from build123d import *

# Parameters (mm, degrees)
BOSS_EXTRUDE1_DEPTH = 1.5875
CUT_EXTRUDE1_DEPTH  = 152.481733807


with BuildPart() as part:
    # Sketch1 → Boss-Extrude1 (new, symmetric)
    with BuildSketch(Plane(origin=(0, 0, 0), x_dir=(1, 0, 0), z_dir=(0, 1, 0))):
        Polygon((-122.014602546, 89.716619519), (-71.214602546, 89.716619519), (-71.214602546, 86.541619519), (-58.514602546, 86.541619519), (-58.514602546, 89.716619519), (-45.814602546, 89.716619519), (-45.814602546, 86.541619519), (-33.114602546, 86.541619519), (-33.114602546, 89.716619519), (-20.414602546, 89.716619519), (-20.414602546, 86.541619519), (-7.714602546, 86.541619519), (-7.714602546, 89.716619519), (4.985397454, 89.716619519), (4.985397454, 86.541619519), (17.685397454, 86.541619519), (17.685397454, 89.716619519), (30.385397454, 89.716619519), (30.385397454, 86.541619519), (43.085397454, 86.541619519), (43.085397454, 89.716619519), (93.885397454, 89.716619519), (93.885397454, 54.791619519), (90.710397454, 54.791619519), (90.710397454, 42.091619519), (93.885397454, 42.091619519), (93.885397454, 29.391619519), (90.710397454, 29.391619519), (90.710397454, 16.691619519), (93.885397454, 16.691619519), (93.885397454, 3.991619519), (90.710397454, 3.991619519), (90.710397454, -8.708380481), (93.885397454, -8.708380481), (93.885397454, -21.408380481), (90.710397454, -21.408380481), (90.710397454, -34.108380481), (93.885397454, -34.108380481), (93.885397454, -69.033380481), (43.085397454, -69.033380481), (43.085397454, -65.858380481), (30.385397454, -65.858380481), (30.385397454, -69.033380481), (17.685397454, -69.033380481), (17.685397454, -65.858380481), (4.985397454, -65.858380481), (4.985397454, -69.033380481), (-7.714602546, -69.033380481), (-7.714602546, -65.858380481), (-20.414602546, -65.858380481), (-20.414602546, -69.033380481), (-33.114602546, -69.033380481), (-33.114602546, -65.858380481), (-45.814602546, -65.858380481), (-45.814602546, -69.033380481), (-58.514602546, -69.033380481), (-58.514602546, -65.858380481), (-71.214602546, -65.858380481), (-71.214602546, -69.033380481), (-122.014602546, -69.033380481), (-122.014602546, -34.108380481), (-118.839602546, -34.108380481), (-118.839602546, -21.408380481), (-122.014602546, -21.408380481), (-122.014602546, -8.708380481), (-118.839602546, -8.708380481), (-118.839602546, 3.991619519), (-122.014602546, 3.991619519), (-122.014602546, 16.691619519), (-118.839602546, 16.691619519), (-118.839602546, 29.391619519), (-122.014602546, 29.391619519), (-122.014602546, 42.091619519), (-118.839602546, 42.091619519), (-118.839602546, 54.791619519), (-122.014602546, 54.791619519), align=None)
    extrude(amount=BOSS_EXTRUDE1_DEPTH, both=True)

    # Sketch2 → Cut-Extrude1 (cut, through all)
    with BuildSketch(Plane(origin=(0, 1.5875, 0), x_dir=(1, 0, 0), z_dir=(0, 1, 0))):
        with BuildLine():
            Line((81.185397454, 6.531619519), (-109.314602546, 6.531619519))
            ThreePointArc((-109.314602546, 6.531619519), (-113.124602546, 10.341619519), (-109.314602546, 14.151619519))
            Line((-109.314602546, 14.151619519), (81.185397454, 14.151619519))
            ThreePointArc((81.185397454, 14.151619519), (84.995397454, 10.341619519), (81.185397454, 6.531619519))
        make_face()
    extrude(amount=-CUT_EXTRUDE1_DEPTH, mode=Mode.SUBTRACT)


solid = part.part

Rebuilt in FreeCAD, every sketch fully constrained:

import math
import FreeCAD as App
import Part
import Sketcher

V = App.Vector
Q = App.Units.Quantity

doc = App.newDocument("Part")
body = doc.addObject("PartDesign::Body", "Body")

sketch1 = body.newObject("Sketcher::SketchObject", "Sketch")
sketch1.AttachmentSupport = (doc.getObject("XZ_Plane"), [""])
sketch1.MapMode = "FlatFace"
sketch1.addGeometry(Part.LineSegment(V(-71.2, -89.7, 0), V(-122, -89.7, 0)), False)
sketch1.addGeometry(Part.LineSegment(V(-122, -89.7, 0), V(-122, -54.8, 0)), False)
sketch1.addGeometry(Part.LineSegment(V(-122, -54.8, 0), V(-118.8, -54.8, 0)), False)
sketch1.addGeometry(Part.LineSegment(V(-118.8, -54.8, 0), V(-118.8, -42.1, 0)), False)
sketch1.addGeometry(Part.LineSegment(V(-118.8, -42.1, 0), V(-122, -42.1, 0)), False)
sketch1.addGeometry(Part.LineSegment(V(-122, -42.1, 0), V(-122, -29.4, 0)), False)
sketch1.addGeometry(Part.LineSegment(V(-122, -29.4, 0), V(-118.8, -29.4, 0)), False)
sketch1.addGeometry(Part.LineSegment(V(-118.8, -29.4, 0), V(-118.8, -16.7, 0)), False)
sketch1.addGeometry(Part.LineSegment(V(-118.8, -16.7, 0), V(-122, -16.7, 0)), False)
sketch1.addGeometry(Part.LineSegment(V(-122, -16.7, 0), V(-122, -4, 0)), False)
sketch1.addGeometry(Part.LineSegment(V(-122, -4, 0), V(-118.8, -4, 0)), False)
sketch1.addGeometry(Part.LineSegment(V(-118.8, -4, 0), V(-118.8, 8.7, 0)), False)
sketch1.addGeometry(Part.LineSegment(V(-118.8, 8.7, 0), V(-122, 8.7, 0)), False)
sketch1.addGeometry(Part.LineSegment(V(-122, 8.7, 0), V(-122, 21.4, 0)), False)
sketch1.addGeometry(Part.LineSegment(V(-122, 21.4, 0), V(-118.8, 21.4, 0)), False)
sketch1.addGeometry(Part.LineSegment(V(-118.8, 21.4, 0), V(-118.8, 34.1, 0)), False)
sketch1.addGeometry(Part.LineSegment(V(-118.8, 34.1, 0), V(-122, 34.1, 0)), False)
sketch1.addGeometry(Part.LineSegment(V(-122, 34.1, 0), V(-122, 69, 0)), False)
sketch1.addGeometry(Part.LineSegment(V(-122, 69, 0), V(-71.2, 69, 0)), False)
sketch1.addGeometry(Part.LineSegment(V(-71.2, 69, 0), V(-71.2, 65.9, 0)), False)
sketch1.addGeometry(Part.LineSegment(V(-71.2, 65.9, 0), V(-58.5, 65.9, 0)), False)
sketch1.addGeometry(Part.LineSegment(V(-58.5, 65.9, 0), V(-58.5, 69, 0)), False)
sketch1.addGeometry(Part.LineSegment(V(-58.5, 69, 0), V(-45.8, 69, 0)), False)
sketch1.addGeometry(Part.LineSegment(V(-45.8, 69, 0), V(-45.8, 65.9, 0)), False)
sketch1.addGeometry(Part.LineSegment(V(-45.8, 65.9, 0), V(-33.1, 65.9, 0)), False)
sketch1.addGeometry(Part.LineSegment(V(-33.1, 65.9, 0), V(-33.1, 69, 0)), False)
sketch1.addGeometry(Part.LineSegment(V(-33.1, 69, 0), V(-20.4, 69, 0)), False)
sketch1.addGeometry(Part.LineSegment(V(-20.4, 69, 0), V(-20.4, 65.9, 0)), False)
sketch1.addGeometry(Part.LineSegment(V(-20.4, 65.9, 0), V(-7.7, 65.9, 0)), False)
sketch1.addGeometry(Part.LineSegment(V(-7.7, 65.9, 0), V(-7.7, 69, 0)), False)
sketch1.addGeometry(Part.LineSegment(V(-7.7, 69, 0), V(5, 69, 0)), False)
sketch1.addGeometry(Part.LineSegment(V(5, 69, 0), V(5, 65.9, 0)), False)
sketch1.addGeometry(Part.LineSegment(V(5, 65.9, 0), V(17.7, 65.9, 0)), False)
sketch1.addGeometry(Part.LineSegment(V(17.7, 65.9, 0), V(17.7, 69, 0)), False)
sketch1.addGeometry(Part.LineSegment(V(17.7, 69, 0), V(30.4, 69, 0)), False)
sketch1.addGeometry(Part.LineSegment(V(30.4, 69, 0), V(30.4, 65.9, 0)), False)
sketch1.addGeometry(Part.LineSegment(V(30.4, 65.9, 0), V(43.1, 65.9, 0)), False)
sketch1.addGeometry(Part.LineSegment(V(43.1, 65.9, 0), V(43.1, 69, 0)), False)
sketch1.addGeometry(Part.LineSegment(V(43.1, 69, 0), V(93.9, 69, 0)), False)
sketch1.addGeometry(Part.LineSegment(V(93.9, 69, 0), V(93.9, 34.1, 0)), False)
sketch1.addGeometry(Part.LineSegment(V(93.9, 34.1, 0), V(90.7, 34.1, 0)), False)
sketch1.addGeometry(Part.LineSegment(V(90.7, 34.1, 0), V(90.7, 21.4, 0)), False)
sketch1.addGeometry(Part.LineSegment(V(90.7, 21.4, 0), V(93.9, 21.4, 0)), False)
sketch1.addGeometry(Part.LineSegment(V(93.9, 21.4, 0), V(93.9, 8.7, 0)), False)
sketch1.addGeometry(Part.LineSegment(V(93.9, 8.7, 0), V(90.7, 8.7, 0)), False)
sketch1.addGeometry(Part.LineSegment(V(90.7, 8.7, 0), V(90.7, -4, 0)), False)
sketch1.addGeometry(Part.LineSegment(V(90.7, -4, 0), V(93.9, -4, 0)), False)
sketch1.addGeometry(Part.LineSegment(V(93.9, -4, 0), V(93.9, -16.7, 0)), False)
sketch1.addGeometry(Part.LineSegment(V(93.9, -16.7, 0), V(90.7, -16.7, 0)), False)
sketch1.addGeometry(Part.LineSegment(V(90.7, -16.7, 0), V(90.7, -29.4, 0)), False)
sketch1.addGeometry(Part.LineSegment(V(90.7, -29.4, 0), V(93.9, -29.4, 0)), False)
sketch1.addGeometry(Part.LineSegment(V(93.9, -29.4, 0), V(93.9, -42.1, 0)), False)
sketch1.addGeometry(Part.LineSegment(V(93.9, -42.1, 0), V(90.7, -42.1, 0)), False)
sketch1.addGeometry(Part.LineSegment(V(90.7, -42.1, 0), V(90.7, -54.8, 0)), False)
sketch1.addGeometry(Part.LineSegment(V(90.7, -54.8, 0), V(93.9, -54.8, 0)), False)
sketch1.addGeometry(Part.LineSegment(V(93.9, -54.8, 0), V(93.9, -89.7, 0)), False)
sketch1.addGeometry(Part.LineSegment(V(93.9, -89.7, 0), V(43.1, -89.7, 0)), False)
sketch1.addGeometry(Part.LineSegment(V(43.1, -89.7, 0), V(43.1, -86.5, 0)), False)
sketch1.addGeometry(Part.LineSegment(V(43.1, -86.5, 0), V(30.4, -86.5, 0)), False)
sketch1.addGeometry(Part.LineSegment(V(30.4, -86.5, 0), V(30.4, -89.7, 0)), False)
sketch1.addGeometry(Part.LineSegment(V(30.4, -89.7, 0), V(17.7, -89.7, 0)), False)
sketch1.addGeometry(Part.LineSegment(V(17.7, -89.7, 0), V(17.7, -86.5, 0)), False)
sketch1.addGeometry(Part.LineSegment(V(17.7, -86.5, 0), V(5, -86.5, 0)), False)
sketch1.addGeometry(Part.LineSegment(V(5, -86.5, 0), V(5, -89.7, 0)), False)
sketch1.addGeometry(Part.LineSegment(V(5, -89.7, 0), V(-7.7, -89.7, 0)), False)
sketch1.addGeometry(Part.LineSegment(V(-7.7, -89.7, 0), V(-7.7, -86.5, 0)), False)
sketch1.addGeometry(Part.LineSegment(V(-7.7, -86.5, 0), V(-20.4, -86.5, 0)), False)
sketch1.addGeometry(Part.LineSegment(V(-20.4, -86.5, 0), V(-20.4, -89.7, 0)), False)
sketch1.addGeometry(Part.LineSegment(V(-20.4, -89.7, 0), V(-33.1, -89.7, 0)), False)
sketch1.addGeometry(Part.LineSegment(V(-33.1, -89.7, 0), V(-33.1, -86.5, 0)), False)
sketch1.addGeometry(Part.LineSegment(V(-33.1, -86.5, 0), V(-45.8, -86.5, 0)), False)
sketch1.addGeometry(Part.LineSegment(V(-45.8, -86.5, 0), V(-45.8, -89.7, 0)), False)
sketch1.addGeometry(Part.LineSegment(V(-45.8, -89.7, 0), V(-58.5, -89.7, 0)), False)
sketch1.addGeometry(Part.LineSegment(V(-58.5, -89.7, 0), V(-58.5, -86.5, 0)), False)
sketch1.addGeometry(Part.LineSegment(V(-58.5, -86.5, 0), V(-71.2, -86.5, 0)), False)
sketch1.addGeometry(Part.LineSegment(V(-71.2, -86.5, 0), V(-71.2, -89.7, 0)), False)
sketch1.addConstraint(Sketcher.Constraint("Coincident", 0, 2, 1, 1))
sketch1.addConstraint(Sketcher.Constraint("Coincident", 1, 2, 2, 1))
sketch1.addConstraint(Sketcher.Constraint("Coincident", 2, 2, 3, 1))
sketch1.addConstraint(Sketcher.Constraint("Coincident", 3, 2, 4, 1))
sketch1.addConstraint(Sketcher.Constraint("Coincident", 4, 2, 5, 1))
sketch1.addConstraint(Sketcher.Constraint("Coincident", 5, 2, 6, 1))
sketch1.addConstraint(Sketcher.Constraint("Coincident", 6, 2, 7, 1))
sketch1.addConstraint(Sketcher.Constraint("Coincident", 7, 2, 8, 1))
sketch1.addConstraint(Sketcher.Constraint("Coincident", 8, 2, 9, 1))
sketch1.addConstraint(Sketcher.Constraint("Coincident", 9, 2, 10, 1))
sketch1.addConstraint(Sketcher.Constraint("Coincident", 10, 2, 11, 1))
sketch1.addConstraint(Sketcher.Constraint("Coincident", 11, 2, 12, 1))
sketch1.addConstraint(Sketcher.Constraint("Coincident", 12, 2, 13, 1))
sketch1.addConstraint(Sketcher.Constraint("Coincident", 13, 2, 14, 1))
sketch1.addConstraint(Sketcher.Constraint("Coincident", 14, 2, 15, 1))
sketch1.addConstraint(Sketcher.Constraint("Coincident", 15, 2, 16, 1))
sketch1.addConstraint(Sketcher.Constraint("Coincident", 16, 2, 17, 1))
sketch1.addConstraint(Sketcher.Constraint("Coincident", 17, 2, 18, 1))
sketch1.addConstraint(Sketcher.Constraint("Coincident", 18, 2, 19, 1))
sketch1.addConstraint(Sketcher.Constraint("Coincident", 19, 2, 20, 1))
sketch1.addConstraint(Sketcher.Constraint("Coincident", 20, 2, 21, 1))
sketch1.addConstraint(Sketcher.Constraint("Coincident", 21, 2, 22, 1))
sketch1.addConstraint(Sketcher.Constraint("Coincident", 22, 2, 23, 1))
sketch1.addConstraint(Sketcher.Constraint("Coincident", 23, 2, 24, 1))
sketch1.addConstraint(Sketcher.Constraint("Coincident", 24, 2, 25, 1))
sketch1.addConstraint(Sketcher.Constraint("Coincident", 25, 2, 26, 1))
sketch1.addConstraint(Sketcher.Constraint("Coincident", 26, 2, 27, 1))
sketch1.addConstraint(Sketcher.Constraint("Coincident", 27, 2, 28, 1))
sketch1.addConstraint(Sketcher.Constraint("Coincident", 28, 2, 29, 1))
sketch1.addConstraint(Sketcher.Constraint("Coincident", 29, 2, 30, 1))
sketch1.addConstraint(Sketcher.Constraint("Coincident", 30, 2, 31, 1))
sketch1.addConstraint(Sketcher.Constraint("Coincident", 31, 2, 32, 1))
sketch1.addConstraint(Sketcher.Constraint("Coincident", 32, 2, 33, 1))
sketch1.addConstraint(Sketcher.Constraint("Coincident", 33, 2, 34, 1))
sketch1.addConstraint(Sketcher.Constraint("Coincident", 34, 2, 35, 1))
sketch1.addConstraint(Sketcher.Constraint("Coincident", 35, 2, 36, 1))
sketch1.addConstraint(Sketcher.Constraint("Coincident", 36, 2, 37, 1))
sketch1.addConstraint(Sketcher.Constraint("Coincident", 37, 2, 38, 1))
sketch1.addConstraint(Sketcher.Constraint("Coincident", 38, 2, 39, 1))
sketch1.addConstraint(Sketcher.Constraint("Coincident", 39, 2, 40, 1))
sketch1.addConstraint(Sketcher.Constraint("Coincident", 40, 2, 41, 1))
sketch1.addConstraint(Sketcher.Constraint("Coincident", 41, 2, 42, 1))
sketch1.addConstraint(Sketcher.Constraint("Coincident", 42, 2, 43, 1))
sketch1.addConstraint(Sketcher.Constraint("Coincident", 43, 2, 44, 1))
sketch1.addConstraint(Sketcher.Constraint("Coincident", 44, 2, 45, 1))
sketch1.addConstraint(Sketcher.Constraint("Coincident", 45, 2, 46, 1))
sketch1.addConstraint(Sketcher.Constraint("Coincident", 46, 2, 47, 1))
sketch1.addConstraint(Sketcher.Constraint("Coincident", 47, 2, 48, 1))
sketch1.addConstraint(Sketcher.Constraint("Coincident", 48, 2, 49, 1))
sketch1.addConstraint(Sketcher.Constraint("Coincident", 49, 2, 50, 1))
sketch1.addConstraint(Sketcher.Constraint("Coincident", 50, 2, 51, 1))
sketch1.addConstraint(Sketcher.Constraint("Coincident", 51, 2, 52, 1))
sketch1.addConstraint(Sketcher.Constraint("Coincident", 52, 2, 53, 1))
sketch1.addConstraint(Sketcher.Constraint("Coincident", 53, 2, 54, 1))
sketch1.addConstraint(Sketcher.Constraint("Coincident", 54, 2, 55, 1))
sketch1.addConstraint(Sketcher.Constraint("Coincident", 55, 2, 56, 1))
sketch1.addConstraint(Sketcher.Constraint("Coincident", 56, 2, 57, 1))
sketch1.addConstraint(Sketcher.Constraint("Coincident", 57, 2, 58, 1))
sketch1.addConstraint(Sketcher.Constraint("Coincident", 58, 2, 59, 1))
sketch1.addConstraint(Sketcher.Constraint("Coincident", 59, 2, 60, 1))
sketch1.addConstraint(Sketcher.Constraint("Coincident", 60, 2, 61, 1))
sketch1.addConstraint(Sketcher.Constraint("Coincident", 61, 2, 62, 1))
sketch1.addConstraint(Sketcher.Constraint("Coincident", 62, 2, 63, 1))
sketch1.addConstraint(Sketcher.Constraint("Coincident", 63, 2, 64, 1))
sketch1.addConstraint(Sketcher.Constraint("Coincident", 64, 2, 65, 1))
sketch1.addConstraint(Sketcher.Constraint("Coincident", 65, 2, 66, 1))
sketch1.addConstraint(Sketcher.Constraint("Coincident", 66, 2, 67, 1))
sketch1.addConstraint(Sketcher.Constraint("Coincident", 67, 2, 68, 1))
sketch1.addConstraint(Sketcher.Constraint("Coincident", 68, 2, 69, 1))
sketch1.addConstraint(Sketcher.Constraint("Coincident", 69, 2, 70, 1))
sketch1.addConstraint(Sketcher.Constraint("Coincident", 70, 2, 71, 1))
sketch1.addConstraint(Sketcher.Constraint("Coincident", 71, 2, 72, 1))
sketch1.addConstraint(Sketcher.Constraint("Coincident", 72, 2, 73, 1))
sketch1.addConstraint(Sketcher.Constraint("Coincident", 73, 2, 74, 1))
sketch1.addConstraint(Sketcher.Constraint("Coincident", 74, 2, 75, 1))
sketch1.addConstraint(Sketcher.Constraint("Coincident", 75, 2, 0, 1))
sketch1.addConstraint(Sketcher.Constraint("Horizontal", 0))
sketch1.addConstraint(Sketcher.Constraint("Vertical", 1))
sketch1.addConstraint(Sketcher.Constraint("Horizontal", 2))
sketch1.addConstraint(Sketcher.Constraint("Vertical", 3))
sketch1.addConstraint(Sketcher.Constraint("Horizontal", 4))
sketch1.addConstraint(Sketcher.Constraint("Vertical", 5))
sketch1.addConstraint(Sketcher.Constraint("Horizontal", 6))
sketch1.addConstraint(Sketcher.Constraint("Vertical", 7))
sketch1.addConstraint(Sketcher.Constraint("Horizontal", 8))
sketch1.addConstraint(Sketcher.Constraint("Vertical", 9))
sketch1.addConstraint(Sketcher.Constraint("Horizontal", 10))
sketch1.addConstraint(Sketcher.Constraint("Vertical", 11))
sketch1.addConstraint(Sketcher.Constraint("Horizontal", 12))
sketch1.addConstraint(Sketcher.Constraint("Vertical", 13))
sketch1.addConstraint(Sketcher.Constraint("Horizontal", 14))
sketch1.addConstraint(Sketcher.Constraint("Vertical", 15))
sketch1.addConstraint(Sketcher.Constraint("Horizontal", 16))
sketch1.addConstraint(Sketcher.Constraint("Vertical", 17))
sketch1.addConstraint(Sketcher.Constraint("Horizontal", 18))
sketch1.addConstraint(Sketcher.Constraint("Vertical", 19))
sketch1.addConstraint(Sketcher.Constraint("Horizontal", 20))
sketch1.addConstraint(Sketcher.Constraint("Vertical", 21))
sketch1.addConstraint(Sketcher.Constraint("Horizontal", 22))
sketch1.addConstraint(Sketcher.Constraint("Vertical", 23))
sketch1.addConstraint(Sketcher.Constraint("Horizontal", 24))
sketch1.addConstraint(Sketcher.Constraint("Vertical", 25))
sketch1.addConstraint(Sketcher.Constraint("Horizontal", 26))
sketch1.addConstraint(Sketcher.Constraint("Vertical", 27))
sketch1.addConstraint(Sketcher.Constraint("Horizontal", 28))
sketch1.addConstraint(Sketcher.Constraint("Vertical", 29))
sketch1.addConstraint(Sketcher.Constraint("Horizontal", 30))
sketch1.addConstraint(Sketcher.Constraint("Vertical", 31))
sketch1.addConstraint(Sketcher.Constraint("Horizontal", 32))
sketch1.addConstraint(Sketcher.Constraint("Vertical", 33))
sketch1.addConstraint(Sketcher.Constraint("Horizontal", 34))
sketch1.addConstraint(Sketcher.Constraint("Vertical", 35))
sketch1.addConstraint(Sketcher.Constraint("Horizontal", 36))
sketch1.addConstraint(Sketcher.Constraint("Vertical", 37))
sketch1.addConstraint(Sketcher.Constraint("Horizontal", 38))
sketch1.addConstraint(Sketcher.Constraint("Vertical", 39))
sketch1.addConstraint(Sketcher.Constraint("Horizontal", 40))
sketch1.addConstraint(Sketcher.Constraint("Vertical", 41))
sketch1.addConstraint(Sketcher.Constraint("Horizontal", 42))
sketch1.addConstraint(Sketcher.Constraint("Vertical", 43))
sketch1.addConstraint(Sketcher.Constraint("Horizontal", 44))
sketch1.addConstraint(Sketcher.Constraint("Vertical", 45))
sketch1.addConstraint(Sketcher.Constraint("Horizontal", 46))
sketch1.addConstraint(Sketcher.Constraint("Vertical", 47))
sketch1.addConstraint(Sketcher.Constraint("Horizontal", 48))
sketch1.addConstraint(Sketcher.Constraint("Vertical", 49))
sketch1.addConstraint(Sketcher.Constraint("Horizontal", 50))
sketch1.addConstraint(Sketcher.Constraint("Vertical", 51))
sketch1.addConstraint(Sketcher.Constraint("Horizontal", 52))
sketch1.addConstraint(Sketcher.Constraint("Vertical", 53))
sketch1.addConstraint(Sketcher.Constraint("Horizontal", 54))
sketch1.addConstraint(Sketcher.Constraint("Vertical", 55))
sketch1.addConstraint(Sketcher.Constraint("Horizontal", 56))
sketch1.addConstraint(Sketcher.Constraint("Vertical", 57))
sketch1.addConstraint(Sketcher.Constraint("Horizontal", 58))
sketch1.addConstraint(Sketcher.Constraint("Vertical", 59))
sketch1.addConstraint(Sketcher.Constraint("Horizontal", 60))
sketch1.addConstraint(Sketcher.Constraint("Vertical", 61))
sketch1.addConstraint(Sketcher.Constraint("Horizontal", 62))
sketch1.addConstraint(Sketcher.Constraint("Vertical", 63))
sketch1.addConstraint(Sketcher.Constraint("Horizontal", 64))
sketch1.addConstraint(Sketcher.Constraint("Vertical", 65))
sketch1.addConstraint(Sketcher.Constraint("Horizontal", 66))
sketch1.addConstraint(Sketcher.Constraint("Vertical", 67))
sketch1.addConstraint(Sketcher.Constraint("Horizontal", 68))
sketch1.addConstraint(Sketcher.Constraint("Vertical", 69))
sketch1.addConstraint(Sketcher.Constraint("Horizontal", 70))
sketch1.addConstraint(Sketcher.Constraint("Vertical", 71))
sketch1.addConstraint(Sketcher.Constraint("Horizontal", 72))
sketch1.addConstraint(Sketcher.Constraint("Vertical", 73))
sketch1.addConstraint(Sketcher.Constraint("Horizontal", 74))
sketch1.addConstraint(Sketcher.Constraint("Vertical", 75))
sketch1.addConstraint(Sketcher.Constraint("Horizontal", 18, 2, 21, 2))
sketch1.addConstraint(Sketcher.Constraint("Horizontal", 20, 2, 23, 2))
sketch1.addConstraint(Sketcher.Constraint("Horizontal", 22, 2, 25, 2))
sketch1.addConstraint(Sketcher.Constraint("Horizontal", 24, 2, 27, 2))
sketch1.addConstraint(Sketcher.Constraint("Horizontal", 26, 2, 29, 2))
sketch1.addConstraint(Sketcher.Constraint("Horizontal", 28, 2, 31, 2))
sketch1.addConstraint(Sketcher.Constraint("Horizontal", 30, 2, 33, 2))
sketch1.addConstraint(Sketcher.Constraint("Horizontal", 32, 2, 35, 2))
sketch1.addConstraint(Sketcher.Constraint("Horizontal", 34, 2, 37, 2))
sketch1.addConstraint(Sketcher.Constraint("Horizontal", 16, 2, 39, 2))
sketch1.addConstraint(Sketcher.Constraint("Horizontal", 14, 2, 41, 2))
sketch1.addConstraint(Sketcher.Constraint("Horizontal", 12, 2, 43, 2))
sketch1.addConstraint(Sketcher.Constraint("Horizontal", 10, 2, 45, 2))
sketch1.addConstraint(Sketcher.Constraint("Horizontal", 8, 2, 47, 2))
sketch1.addConstraint(Sketcher.Constraint("Horizontal", 6, 2, 49, 2))
sketch1.addConstraint(Sketcher.Constraint("Horizontal", 4, 2, 51, 2))
sketch1.addConstraint(Sketcher.Constraint("Horizontal", 2, 2, 53, 2))
sketch1.addConstraint(Sketcher.Constraint("Horizontal", 0, 2, 55, 2))
sketch1.addConstraint(Sketcher.Constraint("Horizontal", 56, 2, 59, 2))
sketch1.addConstraint(Sketcher.Constraint("Horizontal", 58, 2, 61, 2))
sketch1.addConstraint(Sketcher.Constraint("Horizontal", 60, 2, 63, 2))
sketch1.addConstraint(Sketcher.Constraint("Horizontal", 62, 2, 65, 2))
sketch1.addConstraint(Sketcher.Constraint("Horizontal", 64, 2, 67, 2))
sketch1.addConstraint(Sketcher.Constraint("Horizontal", 66, 2, 69, 2))
sketch1.addConstraint(Sketcher.Constraint("Horizontal", 68, 2, 71, 2))
sketch1.addConstraint(Sketcher.Constraint("Horizontal", 70, 2, 73, 2))
sketch1.addConstraint(Sketcher.Constraint("Vertical", 1, 2, 4, 2))
sketch1.addConstraint(Sketcher.Constraint("Vertical", 3, 2, 6, 2))
sketch1.addConstraint(Sketcher.Constraint("Vertical", 5, 2, 8, 2))
sketch1.addConstraint(Sketcher.Constraint("Vertical", 7, 2, 10, 2))
sketch1.addConstraint(Sketcher.Constraint("Vertical", 9, 2, 12, 2))
sketch1.addConstraint(Sketcher.Constraint("Vertical", 11, 2, 14, 2))
sketch1.addConstraint(Sketcher.Constraint("Vertical", 13, 2, 16, 2))
sketch1.addConstraint(Sketcher.Constraint("Vertical", 39, 2, 42, 2))
sketch1.addConstraint(Sketcher.Constraint("Vertical", 41, 2, 44, 2))
sketch1.addConstraint(Sketcher.Constraint("Vertical", 43, 2, 46, 2))
sketch1.addConstraint(Sketcher.Constraint("Vertical", 45, 2, 48, 2))
sketch1.addConstraint(Sketcher.Constraint("Vertical", 47, 2, 50, 2))
sketch1.addConstraint(Sketcher.Constraint("Vertical", 49, 2, 52, 2))
sketch1.addConstraint(Sketcher.Constraint("Vertical", 51, 2, 54, 2))
sketch1.addConstraint(Sketcher.Constraint("Vertical", 37, 2, 56, 2))
sketch1.addConstraint(Sketcher.Constraint("Vertical", 35, 2, 58, 2))
sketch1.addConstraint(Sketcher.Constraint("Vertical", 33, 2, 60, 2))
sketch1.addConstraint(Sketcher.Constraint("Vertical", 31, 2, 62, 2))
sketch1.addConstraint(Sketcher.Constraint("Vertical", 29, 2, 64, 2))
sketch1.addConstraint(Sketcher.Constraint("Vertical", 27, 2, 66, 2))
sketch1.addConstraint(Sketcher.Constraint("Vertical", 25, 2, 68, 2))
sketch1.addConstraint(Sketcher.Constraint("Vertical", 23, 2, 70, 2))
sketch1.addConstraint(Sketcher.Constraint("Vertical", 21, 2, 72, 2))
sketch1.addConstraint(Sketcher.Constraint("Vertical", 19, 2, 74, 2))
sketch1.addConstraint(Sketcher.Constraint("Equal", 20, 22))
sketch1.addConstraint(Sketcher.Constraint("Equal", 22, 24))
sketch1.addConstraint(Sketcher.Constraint("Equal", 24, 26))
sketch1.addConstraint(Sketcher.Constraint("Equal", 26, 28))
sketch1.addConstraint(Sketcher.Constraint("Equal", 28, 30))
sketch1.addConstraint(Sketcher.Constraint("Equal", 30, 32))
sketch1.addConstraint(Sketcher.Constraint("Equal", 32, 34))
sketch1.addConstraint(Sketcher.Constraint("Equal", 34, 36))
sketch1.addConstraint(Sketcher.Constraint("Equal", 18, 38))
sketch1.addConstraint(Sketcher.Constraint("Equal", 16, 40))
sketch1.addConstraint(Sketcher.Constraint("Equal", 74, 3))
sketch1.addConstraint(Sketcher.Constraint("Equal", 3, 5))
sketch1.addConstraint(Sketcher.Constraint("Equal", 5, 7))
sketch1.addConstraint(Sketcher.Constraint("Equal", 7, 9))
sketch1.addConstraint(Sketcher.Constraint("Equal", 9, 11))
sketch1.addConstraint(Sketcher.Constraint("Equal", 11, 13))
sketch1.addConstraint(Sketcher.Constraint("Equal", 13, 15))
sketch1.addConstraint(Sketcher.Constraint("Equal", 1, 17))
sketch1.addConstraint(Sketcher.Constraint("Equal", 54, 19))
sketch1.addConstraint(Sketcher.Constraint("Equal", 37, 57))
sketch1.addConstraint(Sketcher.Constraint("DistanceX", 0, 2, 0, 1, Q("2 in")))
sketch1.addConstraint(Sketcher.Constraint("DistanceX", 20, 1, 20, 2, Q("0.5 in")))
sketch1.addConstraint(Sketcher.Constraint("DistanceX", 2, 1, 2, 2, Q("0.125 in")))
sketch1.addConstraint(Sketcher.Constraint("DistanceY", 1, 1, 1, 2, Q("1.375 in")))
sketch1.addConstraint(Sketcher.Constraint("DistanceY", 0, 2, -1, 1, Q("89.71662 mm")))
sketch1.addConstraint(Sketcher.Constraint("DistanceX", 0, 2, -1, 1, Q("122.014603 mm")))
pad1 = body.newObject("PartDesign::Pad", "Pad")
pad1.Profile = sketch1
pad1.Length = Q("0.125 in")
pad1.Midplane = True

sketch2 = body.newObject("Sketcher::SketchObject", "Sketch001")
sketch2.AttachmentSupport = (doc.getObject("XZ_Plane"), [""])
sketch2.MapMode = "FlatFace"
sketch2.AttachmentOffset = App.Placement(V(0, 0, -0.0625 * 25.4), App.Rotation())
sketch2.addGeometry(Part.LineSegment(V(-109.3, -6.5, 0), V(81.2, -6.5, 0)), False)
sketch2.addGeometry(Part.ArcOfCircle(Part.Circle(V(81.2, -10.3, 0), V(0, 0, 1), 3.8), math.radians(-90), math.radians(90)), False)
sketch2.addGeometry(Part.LineSegment(V(81.2, -14.2, 0), V(-109.3, -14.2, 0)), False)
sketch2.addGeometry(Part.ArcOfCircle(Part.Circle(V(-109.3, -10.3, 0), V(0, 0, 1), 3.8), math.radians(90), math.radians(270)), False)
sketch2.addConstraint(Sketcher.Constraint("Tangent", 0, 2, 1, 2))
sketch2.addConstraint(Sketcher.Constraint("Tangent", 1, 1, 2, 1))
sketch2.addConstraint(Sketcher.Constraint("Tangent", 2, 2, 3, 2))
sketch2.addConstraint(Sketcher.Constraint("Tangent", 3, 1, 0, 1))
sketch2.addConstraint(Sketcher.Constraint("Horizontal", 0))
sketch2.addConstraint(Sketcher.Constraint("Horizontal", 2))
sketch2.addConstraint(Sketcher.Constraint("Radius", 1, Q("0.15 in")))
sketch2.addConstraint(Sketcher.Constraint("DistanceX", 0, 1, 0, 2, Q("7.5 in")))
sketch2.addConstraint(Sketcher.Constraint("DistanceY", 1, 3, -1, 1, Q("10.34162 mm")))
sketch2.addConstraint(Sketcher.Constraint("DistanceX", -1, 1, 1, 3, Q("81.185397 mm")))
pocket1 = body.newObject("PartDesign::Pocket", "Pocket")
pocket1.Profile = sketch2
pocket1.Type = "ThroughAll"
pocket1.Reversed = True

doc.recompute()
